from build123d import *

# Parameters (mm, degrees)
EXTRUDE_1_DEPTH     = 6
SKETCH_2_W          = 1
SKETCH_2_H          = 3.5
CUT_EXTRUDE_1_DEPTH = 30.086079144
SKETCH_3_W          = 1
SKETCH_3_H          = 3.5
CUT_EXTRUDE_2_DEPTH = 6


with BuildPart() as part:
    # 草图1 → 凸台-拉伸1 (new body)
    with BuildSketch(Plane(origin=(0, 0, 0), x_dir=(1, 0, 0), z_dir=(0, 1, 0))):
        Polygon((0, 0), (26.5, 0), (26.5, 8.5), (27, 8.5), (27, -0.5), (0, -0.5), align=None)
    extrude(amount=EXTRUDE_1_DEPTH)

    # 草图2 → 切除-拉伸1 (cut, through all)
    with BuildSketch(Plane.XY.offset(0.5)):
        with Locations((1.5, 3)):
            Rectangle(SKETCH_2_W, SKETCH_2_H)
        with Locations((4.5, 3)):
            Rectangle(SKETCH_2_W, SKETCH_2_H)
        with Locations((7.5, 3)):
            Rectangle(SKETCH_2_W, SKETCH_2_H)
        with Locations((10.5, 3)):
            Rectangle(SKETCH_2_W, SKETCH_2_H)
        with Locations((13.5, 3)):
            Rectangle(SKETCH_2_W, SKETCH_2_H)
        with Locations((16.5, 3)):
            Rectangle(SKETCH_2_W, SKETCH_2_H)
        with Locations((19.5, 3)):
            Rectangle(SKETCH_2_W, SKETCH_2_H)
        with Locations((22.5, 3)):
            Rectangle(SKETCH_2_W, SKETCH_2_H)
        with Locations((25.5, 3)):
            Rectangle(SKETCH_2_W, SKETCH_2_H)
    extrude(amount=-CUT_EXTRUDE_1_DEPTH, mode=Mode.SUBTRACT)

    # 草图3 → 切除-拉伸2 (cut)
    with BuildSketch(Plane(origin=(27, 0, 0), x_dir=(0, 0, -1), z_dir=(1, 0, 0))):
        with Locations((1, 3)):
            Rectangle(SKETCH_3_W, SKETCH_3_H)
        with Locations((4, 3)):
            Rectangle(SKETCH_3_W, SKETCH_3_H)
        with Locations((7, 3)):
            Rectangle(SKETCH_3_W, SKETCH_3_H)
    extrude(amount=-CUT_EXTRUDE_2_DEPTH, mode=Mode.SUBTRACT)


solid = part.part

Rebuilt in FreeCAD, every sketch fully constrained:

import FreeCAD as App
import Part
import Sketcher
from FreeCAD import Vector


def add_polygon(sketch, points):
    """Adds a closed chain of lines whose ends are joined by coincident constraints."""
    first, n = sketch.GeometryCount, len(points)
    for a, b in zip(points, points[1:] + points[:1]):
        sketch.addGeometry(Part.LineSegment(App.Vector(*a, 0), App.Vector(*b, 0)), False)
    for i in range(n):
        sketch.addConstraint(Sketcher.Constraint("Coincident", first + i, 2, first + (i + 1) % n, 1))

doc = App.newDocument("Part")
body = doc.addObject("PartDesign::Body", "Body")

# Sketch on XZ plane
sketch1 = body.newObject("Sketcher::SketchObject", "Sketch")
sketch1.AttachmentSupport = (doc.getObject("XZ_Plane"), [""])
sketch1.MapMode = "FlatFace"
add_polygon(sketch1, [(26.5, 0), (0, 0), (0, 0.5), (27, 0.5), (27, -8.5), (26.5, -8.5)])  # lines 0-5
sketch1.addConstraint([
    Sketcher.Constraint("Horizontal", 0),
    Sketcher.Constraint("Vertical", 1),
    Sketcher.Constraint("Horizontal", 2),
    Sketcher.Constraint("Vertical", 3),
    Sketcher.Constraint("Horizontal", 4),
    Sketcher.Constraint("Vertical", 5),
    Sketcher.Constraint("Coincident", 0, 2, -1, 1),
    Sketcher.Constraint("Equal", 4, 1),
    Sketcher.Constraint("DistanceX", 2, 1, 2, 2, 27.0),
    Sketcher.Constraint("DistanceY", 3, 2, 3, 1, 9.0),
    Sketcher.Constraint("DistanceX", 0, 2, 0, 1, 26.5),
])
pad1 = body.newObject("PartDesign::Pad", "Pad")
pad1.Profile = sketch1
pad1.Length = 6
pad1.Reversed = True

# Sketch on XY plane
sketch2 = body.newObject("Sketcher::SketchObject", "Sketch001")
sketch2.AttachmentSupport = (doc.getObject("XY_Plane"), [""])
sketch2.MapMode = "FlatFace"
sketch2.AttachmentOffset = App.Placement(Vector(0, 0, 0.5), App.Rotation())
add_polygon(sketch2, [(1, 4.8), (1, 1.2), (2, 1.2), (2, 4.8)])  # lines 0-3
add_polygon(sketch2, [(4, 4.8), (4, 1.2), (5, 1.2), (5, 4.8)])  # lines 4-7
add_polygon(sketch2, [(7, 4.8), (7, 1.2), (8, 1.2), (8, 4.8)])  # lines 8-11
add_polygon(sketch2, [(10, 4.8), (10, 1.2), (11, 1.2), (11, 4.8)])  # lines 12-15
add_polygon(sketch2, [(13, 4.8), (13, 1.2), (14, 1.2), (14, 4.8)])  # lines 16-19
add_polygon(sketch2, [(16, 4.8), (16, 1.2), (17, 1.2), (17, 4.8)])  # lines 20-23
add_polygon(sketch2, [(19, 4.8), (19, 1.2), (20, 1.2), (20, 4.8)])  # lines 24-27
add_polygon(sketch2, [(22, 4.8), (22, 1.2), (23, 1.2), (23, 4.8)])  # lines 28-31
add_polygon(sketch2, [(25, 4.8), (25, 1.2), (26, 1.2), (26, 4.8)])  # lines 32-35
sketch2.addConstraint([
    Sketcher.Constraint("Vertical", 0),
    Sketcher.Constraint("Horizontal", 1),
    Sketcher.Constraint("Vertical", 2),
    Sketcher.Constraint("Horizontal", 3),
    Sketcher.Constraint("Vertical", 4),
    Sketcher.Constraint("Horizontal", 5),
    Sketcher.Constraint("Vertical", 6),
    Sketcher.Constraint("Horizontal", 7),
    Sketcher.Constraint("Vertical", 8),
    Sketcher.Constraint("Horizontal", 9),
    Sketcher.Constraint("Vertical", 10),
    Sketcher.Constraint("Horizontal", 11),
    Sketcher.Constraint("Vertical", 12),
    Sketcher.Constraint("Horizontal", 13),
    Sketcher.Constraint("Vertical", 14),
    Sketcher.Constraint("Horizontal", 15),
    Sketcher.Constraint("Vertical", 16),
    Sketcher.Constraint("Horizontal", 17),
    Sketcher.Constraint("Vertical", 18),
    Sketcher.Constraint("Horizontal", 19),
    Sketcher.Constraint("Vertical", 20),
    Sketcher.Constraint("Horizontal", 21),
    Sketcher.Constraint("Vertical", 22),
    Sketcher.Constraint("Horizontal", 23),
    Sketcher.Constraint("Vertical", 24),
    Sketcher.Constraint("Horizontal", 25),
    Sketcher.Constraint("Vertical", 26),
    Sketcher.Constraint("Horizontal", 27),
    Sketcher.Constraint("Vertical", 28),
    Sketcher.Constraint("Horizontal", 29),
    Sketcher.Constraint("Vertical", 30),
    Sketcher.Constraint("Horizontal", 31),
    Sketcher.Constraint("Vertical", 32),
    Sketcher.Constraint("Horizontal", 33),
    Sketcher.Constraint("Vertical", 34),
    Sketcher.Constraint("Horizontal", 35),
    Sketcher.Constraint("Horizontal", 1, 2, 4, 2),
    Sketcher.Constraint("Horizontal", 3, 2, 6, 2),
    Sketcher.Constraint("Horizontal", 5, 2, 8, 2),
    Sketcher.Constraint("Horizontal", 7, 2, 10, 2),
    Sketcher.Constraint("Horizontal", 9, 2, 12, 2),
    Sketcher.Constraint("Horizontal", 11, 2, 14, 2),
    Sketcher.Constraint("Horizontal", 13, 2, 16, 2),
    Sketcher.Constraint("Horizontal", 15, 2, 18, 2),
    Sketcher.Constraint("Horizontal", 17, 2, 20, 2),
    Sketcher.Constraint("Horizontal", 19, 2, 22, 2),
    Sketcher.Constraint("Horizontal", 21, 2, 24, 2),
    Sketcher.Constraint("Horizontal", 23, 2, 26, 2),
    Sketcher.Constraint("Horizontal", 25, 2, 28, 2),
    Sketcher.Constraint("Horizontal", 27, 2, 30, 2),
    Sketcher.Constraint("Horizontal", 29, 2, 32, 2),
    Sketcher.Constraint("Horizontal", 31, 2, 34, 2),
    Sketcher.Constraint("Equal", 3, 5),
    Sketcher.Constraint("Equal", 7, 9),
    Sketcher.Constraint("Equal", 11, 13),
    Sketcher.Constraint("Equal", 15, 17),
    Sketcher.Constraint("Equal", 19, 21),
    Sketcher.Constraint("Equal", 23, 25),
    Sketcher.Constraint("Equal", 27, 29),
    Sketcher.Constraint("Equal", 31, 33),
    Sketcher.Constraint("DistanceX", 1, 1, 1, 2, 1.0),
    Sketcher.Constraint("DistanceY", 0, 2, 0, 1, 3.5),
    Sketcher.Constraint("DistanceX", -1, 1, 0, 2, 1.0),
    Sketcher.Constraint("DistanceX", -1, 1, 4, 2, 4.0),
    Sketcher.Constraint("DistanceX", -1, 1, 8, 2, 7.0),
    Sketcher.Constraint("DistanceX", -1, 1, 12, 2, 10.0),
    Sketcher.Constraint("DistanceX", -1, 1, 16, 2, 13.0),
    Sketcher.Constraint("DistanceX", -1, 1, 20, 2, 16.0),
    Sketcher.Constraint("DistanceX", -1, 1, 24, 2, 19.0),
    Sketcher.Constraint("DistanceX", -1, 1, 28, 2, 22.0),
    Sketcher.Constraint("DistanceX", -1, 1, 32, 2, 25.0),
    Sketcher.Constraint("DistanceY", -1, 1, 0, 2, 1.25),
])
pocket1 = body.newObject("PartDesign::Pocket", "Pocket")
pocket1.Profile = sketch2
pocket1.Type = "ThroughAll"

# Sketch on YZ plane
sketch3 = body.newObject("Sketcher::SketchObject", "Sketch002")
sketch3.AttachmentSupport = (doc.getObject("YZ_Plane"), [""])
sketch3.MapMode = "FlatFace"
sketch3.AttachmentOffset = App.Placement(Vector(0, 0, 27), App.Rotation())
add_polygon(sketch3, [(4.8, -0.5), (1.2, -0.5), (1.2, -1.5), (4.8, -1.5)])  # lines 0-3
add_polygon(sketch3, [(4.8, -3.5), (1.2, -3.5), (1.2, -4.5), (4.8, -4.5)])  # lines 4-7
add_polygon(sketch3, [(4.8, -6.5), (1.2, -6.5), (1.2, -7.5), (4.8, -7.5)])  # lines 8-11
sketch3.addConstraint([
    Sketcher.Constraint("Horizontal", 0),
    Sketcher.Constraint("Vertical", 1),
    Sketcher.Constraint("Horizontal", 2),
    Sketcher.Constraint("Vertical", 3),
    Sketcher.Constraint("Horizontal", 4),
    Sketcher.Constraint("Vertical", 5),
    Sketcher.Constraint("Horizontal", 6),
    Sketcher.Constraint("Vertical", 7),
    Sketcher.Constraint("Horizontal", 8),
    Sketcher.Constraint("Vertical", 9),
    Sketcher.Constraint("Horizontal", 10),
    Sketcher.Constraint("Vertical", 11),
    Sketcher.Constraint("Vertical", 1, 2, 4, 2),
    Sketcher.Constraint("Vertical", 3, 2, 6, 2),
    Sketcher.Constraint("Vertical", 5, 2, 8, 2),
    Sketcher.Constraint("Vertical", 7, 2, 10, 2),
    Sketcher.Constraint("Equal", 3, 5),
    Sketcher.Constraint("Equal", 7, 9),
    Sketcher.Constraint("DistanceY", 1, 2, 1, 1, 1.0),
    Sketcher.Constraint("DistanceX", 0, 2, 0, 1, 3.5),
    Sketcher.Constraint("DistanceY", 4, 2, 1, 2, 2.0),
    Sketcher.Constraint("DistanceY", 8, 2, 5, 2, 2.0),
    Sketcher.Constraint("DistanceY", 0, 2, -1, 1, 0.5),
    Sketcher.Constraint("DistanceX", -1, 1, 0, 2, 1.25),
])
pocket2 = body.newObject("PartDesign::Pocket", "Pocket001")
pocket2.Profile = sketch3
pocket2.Length = 6

doc.recompute()
